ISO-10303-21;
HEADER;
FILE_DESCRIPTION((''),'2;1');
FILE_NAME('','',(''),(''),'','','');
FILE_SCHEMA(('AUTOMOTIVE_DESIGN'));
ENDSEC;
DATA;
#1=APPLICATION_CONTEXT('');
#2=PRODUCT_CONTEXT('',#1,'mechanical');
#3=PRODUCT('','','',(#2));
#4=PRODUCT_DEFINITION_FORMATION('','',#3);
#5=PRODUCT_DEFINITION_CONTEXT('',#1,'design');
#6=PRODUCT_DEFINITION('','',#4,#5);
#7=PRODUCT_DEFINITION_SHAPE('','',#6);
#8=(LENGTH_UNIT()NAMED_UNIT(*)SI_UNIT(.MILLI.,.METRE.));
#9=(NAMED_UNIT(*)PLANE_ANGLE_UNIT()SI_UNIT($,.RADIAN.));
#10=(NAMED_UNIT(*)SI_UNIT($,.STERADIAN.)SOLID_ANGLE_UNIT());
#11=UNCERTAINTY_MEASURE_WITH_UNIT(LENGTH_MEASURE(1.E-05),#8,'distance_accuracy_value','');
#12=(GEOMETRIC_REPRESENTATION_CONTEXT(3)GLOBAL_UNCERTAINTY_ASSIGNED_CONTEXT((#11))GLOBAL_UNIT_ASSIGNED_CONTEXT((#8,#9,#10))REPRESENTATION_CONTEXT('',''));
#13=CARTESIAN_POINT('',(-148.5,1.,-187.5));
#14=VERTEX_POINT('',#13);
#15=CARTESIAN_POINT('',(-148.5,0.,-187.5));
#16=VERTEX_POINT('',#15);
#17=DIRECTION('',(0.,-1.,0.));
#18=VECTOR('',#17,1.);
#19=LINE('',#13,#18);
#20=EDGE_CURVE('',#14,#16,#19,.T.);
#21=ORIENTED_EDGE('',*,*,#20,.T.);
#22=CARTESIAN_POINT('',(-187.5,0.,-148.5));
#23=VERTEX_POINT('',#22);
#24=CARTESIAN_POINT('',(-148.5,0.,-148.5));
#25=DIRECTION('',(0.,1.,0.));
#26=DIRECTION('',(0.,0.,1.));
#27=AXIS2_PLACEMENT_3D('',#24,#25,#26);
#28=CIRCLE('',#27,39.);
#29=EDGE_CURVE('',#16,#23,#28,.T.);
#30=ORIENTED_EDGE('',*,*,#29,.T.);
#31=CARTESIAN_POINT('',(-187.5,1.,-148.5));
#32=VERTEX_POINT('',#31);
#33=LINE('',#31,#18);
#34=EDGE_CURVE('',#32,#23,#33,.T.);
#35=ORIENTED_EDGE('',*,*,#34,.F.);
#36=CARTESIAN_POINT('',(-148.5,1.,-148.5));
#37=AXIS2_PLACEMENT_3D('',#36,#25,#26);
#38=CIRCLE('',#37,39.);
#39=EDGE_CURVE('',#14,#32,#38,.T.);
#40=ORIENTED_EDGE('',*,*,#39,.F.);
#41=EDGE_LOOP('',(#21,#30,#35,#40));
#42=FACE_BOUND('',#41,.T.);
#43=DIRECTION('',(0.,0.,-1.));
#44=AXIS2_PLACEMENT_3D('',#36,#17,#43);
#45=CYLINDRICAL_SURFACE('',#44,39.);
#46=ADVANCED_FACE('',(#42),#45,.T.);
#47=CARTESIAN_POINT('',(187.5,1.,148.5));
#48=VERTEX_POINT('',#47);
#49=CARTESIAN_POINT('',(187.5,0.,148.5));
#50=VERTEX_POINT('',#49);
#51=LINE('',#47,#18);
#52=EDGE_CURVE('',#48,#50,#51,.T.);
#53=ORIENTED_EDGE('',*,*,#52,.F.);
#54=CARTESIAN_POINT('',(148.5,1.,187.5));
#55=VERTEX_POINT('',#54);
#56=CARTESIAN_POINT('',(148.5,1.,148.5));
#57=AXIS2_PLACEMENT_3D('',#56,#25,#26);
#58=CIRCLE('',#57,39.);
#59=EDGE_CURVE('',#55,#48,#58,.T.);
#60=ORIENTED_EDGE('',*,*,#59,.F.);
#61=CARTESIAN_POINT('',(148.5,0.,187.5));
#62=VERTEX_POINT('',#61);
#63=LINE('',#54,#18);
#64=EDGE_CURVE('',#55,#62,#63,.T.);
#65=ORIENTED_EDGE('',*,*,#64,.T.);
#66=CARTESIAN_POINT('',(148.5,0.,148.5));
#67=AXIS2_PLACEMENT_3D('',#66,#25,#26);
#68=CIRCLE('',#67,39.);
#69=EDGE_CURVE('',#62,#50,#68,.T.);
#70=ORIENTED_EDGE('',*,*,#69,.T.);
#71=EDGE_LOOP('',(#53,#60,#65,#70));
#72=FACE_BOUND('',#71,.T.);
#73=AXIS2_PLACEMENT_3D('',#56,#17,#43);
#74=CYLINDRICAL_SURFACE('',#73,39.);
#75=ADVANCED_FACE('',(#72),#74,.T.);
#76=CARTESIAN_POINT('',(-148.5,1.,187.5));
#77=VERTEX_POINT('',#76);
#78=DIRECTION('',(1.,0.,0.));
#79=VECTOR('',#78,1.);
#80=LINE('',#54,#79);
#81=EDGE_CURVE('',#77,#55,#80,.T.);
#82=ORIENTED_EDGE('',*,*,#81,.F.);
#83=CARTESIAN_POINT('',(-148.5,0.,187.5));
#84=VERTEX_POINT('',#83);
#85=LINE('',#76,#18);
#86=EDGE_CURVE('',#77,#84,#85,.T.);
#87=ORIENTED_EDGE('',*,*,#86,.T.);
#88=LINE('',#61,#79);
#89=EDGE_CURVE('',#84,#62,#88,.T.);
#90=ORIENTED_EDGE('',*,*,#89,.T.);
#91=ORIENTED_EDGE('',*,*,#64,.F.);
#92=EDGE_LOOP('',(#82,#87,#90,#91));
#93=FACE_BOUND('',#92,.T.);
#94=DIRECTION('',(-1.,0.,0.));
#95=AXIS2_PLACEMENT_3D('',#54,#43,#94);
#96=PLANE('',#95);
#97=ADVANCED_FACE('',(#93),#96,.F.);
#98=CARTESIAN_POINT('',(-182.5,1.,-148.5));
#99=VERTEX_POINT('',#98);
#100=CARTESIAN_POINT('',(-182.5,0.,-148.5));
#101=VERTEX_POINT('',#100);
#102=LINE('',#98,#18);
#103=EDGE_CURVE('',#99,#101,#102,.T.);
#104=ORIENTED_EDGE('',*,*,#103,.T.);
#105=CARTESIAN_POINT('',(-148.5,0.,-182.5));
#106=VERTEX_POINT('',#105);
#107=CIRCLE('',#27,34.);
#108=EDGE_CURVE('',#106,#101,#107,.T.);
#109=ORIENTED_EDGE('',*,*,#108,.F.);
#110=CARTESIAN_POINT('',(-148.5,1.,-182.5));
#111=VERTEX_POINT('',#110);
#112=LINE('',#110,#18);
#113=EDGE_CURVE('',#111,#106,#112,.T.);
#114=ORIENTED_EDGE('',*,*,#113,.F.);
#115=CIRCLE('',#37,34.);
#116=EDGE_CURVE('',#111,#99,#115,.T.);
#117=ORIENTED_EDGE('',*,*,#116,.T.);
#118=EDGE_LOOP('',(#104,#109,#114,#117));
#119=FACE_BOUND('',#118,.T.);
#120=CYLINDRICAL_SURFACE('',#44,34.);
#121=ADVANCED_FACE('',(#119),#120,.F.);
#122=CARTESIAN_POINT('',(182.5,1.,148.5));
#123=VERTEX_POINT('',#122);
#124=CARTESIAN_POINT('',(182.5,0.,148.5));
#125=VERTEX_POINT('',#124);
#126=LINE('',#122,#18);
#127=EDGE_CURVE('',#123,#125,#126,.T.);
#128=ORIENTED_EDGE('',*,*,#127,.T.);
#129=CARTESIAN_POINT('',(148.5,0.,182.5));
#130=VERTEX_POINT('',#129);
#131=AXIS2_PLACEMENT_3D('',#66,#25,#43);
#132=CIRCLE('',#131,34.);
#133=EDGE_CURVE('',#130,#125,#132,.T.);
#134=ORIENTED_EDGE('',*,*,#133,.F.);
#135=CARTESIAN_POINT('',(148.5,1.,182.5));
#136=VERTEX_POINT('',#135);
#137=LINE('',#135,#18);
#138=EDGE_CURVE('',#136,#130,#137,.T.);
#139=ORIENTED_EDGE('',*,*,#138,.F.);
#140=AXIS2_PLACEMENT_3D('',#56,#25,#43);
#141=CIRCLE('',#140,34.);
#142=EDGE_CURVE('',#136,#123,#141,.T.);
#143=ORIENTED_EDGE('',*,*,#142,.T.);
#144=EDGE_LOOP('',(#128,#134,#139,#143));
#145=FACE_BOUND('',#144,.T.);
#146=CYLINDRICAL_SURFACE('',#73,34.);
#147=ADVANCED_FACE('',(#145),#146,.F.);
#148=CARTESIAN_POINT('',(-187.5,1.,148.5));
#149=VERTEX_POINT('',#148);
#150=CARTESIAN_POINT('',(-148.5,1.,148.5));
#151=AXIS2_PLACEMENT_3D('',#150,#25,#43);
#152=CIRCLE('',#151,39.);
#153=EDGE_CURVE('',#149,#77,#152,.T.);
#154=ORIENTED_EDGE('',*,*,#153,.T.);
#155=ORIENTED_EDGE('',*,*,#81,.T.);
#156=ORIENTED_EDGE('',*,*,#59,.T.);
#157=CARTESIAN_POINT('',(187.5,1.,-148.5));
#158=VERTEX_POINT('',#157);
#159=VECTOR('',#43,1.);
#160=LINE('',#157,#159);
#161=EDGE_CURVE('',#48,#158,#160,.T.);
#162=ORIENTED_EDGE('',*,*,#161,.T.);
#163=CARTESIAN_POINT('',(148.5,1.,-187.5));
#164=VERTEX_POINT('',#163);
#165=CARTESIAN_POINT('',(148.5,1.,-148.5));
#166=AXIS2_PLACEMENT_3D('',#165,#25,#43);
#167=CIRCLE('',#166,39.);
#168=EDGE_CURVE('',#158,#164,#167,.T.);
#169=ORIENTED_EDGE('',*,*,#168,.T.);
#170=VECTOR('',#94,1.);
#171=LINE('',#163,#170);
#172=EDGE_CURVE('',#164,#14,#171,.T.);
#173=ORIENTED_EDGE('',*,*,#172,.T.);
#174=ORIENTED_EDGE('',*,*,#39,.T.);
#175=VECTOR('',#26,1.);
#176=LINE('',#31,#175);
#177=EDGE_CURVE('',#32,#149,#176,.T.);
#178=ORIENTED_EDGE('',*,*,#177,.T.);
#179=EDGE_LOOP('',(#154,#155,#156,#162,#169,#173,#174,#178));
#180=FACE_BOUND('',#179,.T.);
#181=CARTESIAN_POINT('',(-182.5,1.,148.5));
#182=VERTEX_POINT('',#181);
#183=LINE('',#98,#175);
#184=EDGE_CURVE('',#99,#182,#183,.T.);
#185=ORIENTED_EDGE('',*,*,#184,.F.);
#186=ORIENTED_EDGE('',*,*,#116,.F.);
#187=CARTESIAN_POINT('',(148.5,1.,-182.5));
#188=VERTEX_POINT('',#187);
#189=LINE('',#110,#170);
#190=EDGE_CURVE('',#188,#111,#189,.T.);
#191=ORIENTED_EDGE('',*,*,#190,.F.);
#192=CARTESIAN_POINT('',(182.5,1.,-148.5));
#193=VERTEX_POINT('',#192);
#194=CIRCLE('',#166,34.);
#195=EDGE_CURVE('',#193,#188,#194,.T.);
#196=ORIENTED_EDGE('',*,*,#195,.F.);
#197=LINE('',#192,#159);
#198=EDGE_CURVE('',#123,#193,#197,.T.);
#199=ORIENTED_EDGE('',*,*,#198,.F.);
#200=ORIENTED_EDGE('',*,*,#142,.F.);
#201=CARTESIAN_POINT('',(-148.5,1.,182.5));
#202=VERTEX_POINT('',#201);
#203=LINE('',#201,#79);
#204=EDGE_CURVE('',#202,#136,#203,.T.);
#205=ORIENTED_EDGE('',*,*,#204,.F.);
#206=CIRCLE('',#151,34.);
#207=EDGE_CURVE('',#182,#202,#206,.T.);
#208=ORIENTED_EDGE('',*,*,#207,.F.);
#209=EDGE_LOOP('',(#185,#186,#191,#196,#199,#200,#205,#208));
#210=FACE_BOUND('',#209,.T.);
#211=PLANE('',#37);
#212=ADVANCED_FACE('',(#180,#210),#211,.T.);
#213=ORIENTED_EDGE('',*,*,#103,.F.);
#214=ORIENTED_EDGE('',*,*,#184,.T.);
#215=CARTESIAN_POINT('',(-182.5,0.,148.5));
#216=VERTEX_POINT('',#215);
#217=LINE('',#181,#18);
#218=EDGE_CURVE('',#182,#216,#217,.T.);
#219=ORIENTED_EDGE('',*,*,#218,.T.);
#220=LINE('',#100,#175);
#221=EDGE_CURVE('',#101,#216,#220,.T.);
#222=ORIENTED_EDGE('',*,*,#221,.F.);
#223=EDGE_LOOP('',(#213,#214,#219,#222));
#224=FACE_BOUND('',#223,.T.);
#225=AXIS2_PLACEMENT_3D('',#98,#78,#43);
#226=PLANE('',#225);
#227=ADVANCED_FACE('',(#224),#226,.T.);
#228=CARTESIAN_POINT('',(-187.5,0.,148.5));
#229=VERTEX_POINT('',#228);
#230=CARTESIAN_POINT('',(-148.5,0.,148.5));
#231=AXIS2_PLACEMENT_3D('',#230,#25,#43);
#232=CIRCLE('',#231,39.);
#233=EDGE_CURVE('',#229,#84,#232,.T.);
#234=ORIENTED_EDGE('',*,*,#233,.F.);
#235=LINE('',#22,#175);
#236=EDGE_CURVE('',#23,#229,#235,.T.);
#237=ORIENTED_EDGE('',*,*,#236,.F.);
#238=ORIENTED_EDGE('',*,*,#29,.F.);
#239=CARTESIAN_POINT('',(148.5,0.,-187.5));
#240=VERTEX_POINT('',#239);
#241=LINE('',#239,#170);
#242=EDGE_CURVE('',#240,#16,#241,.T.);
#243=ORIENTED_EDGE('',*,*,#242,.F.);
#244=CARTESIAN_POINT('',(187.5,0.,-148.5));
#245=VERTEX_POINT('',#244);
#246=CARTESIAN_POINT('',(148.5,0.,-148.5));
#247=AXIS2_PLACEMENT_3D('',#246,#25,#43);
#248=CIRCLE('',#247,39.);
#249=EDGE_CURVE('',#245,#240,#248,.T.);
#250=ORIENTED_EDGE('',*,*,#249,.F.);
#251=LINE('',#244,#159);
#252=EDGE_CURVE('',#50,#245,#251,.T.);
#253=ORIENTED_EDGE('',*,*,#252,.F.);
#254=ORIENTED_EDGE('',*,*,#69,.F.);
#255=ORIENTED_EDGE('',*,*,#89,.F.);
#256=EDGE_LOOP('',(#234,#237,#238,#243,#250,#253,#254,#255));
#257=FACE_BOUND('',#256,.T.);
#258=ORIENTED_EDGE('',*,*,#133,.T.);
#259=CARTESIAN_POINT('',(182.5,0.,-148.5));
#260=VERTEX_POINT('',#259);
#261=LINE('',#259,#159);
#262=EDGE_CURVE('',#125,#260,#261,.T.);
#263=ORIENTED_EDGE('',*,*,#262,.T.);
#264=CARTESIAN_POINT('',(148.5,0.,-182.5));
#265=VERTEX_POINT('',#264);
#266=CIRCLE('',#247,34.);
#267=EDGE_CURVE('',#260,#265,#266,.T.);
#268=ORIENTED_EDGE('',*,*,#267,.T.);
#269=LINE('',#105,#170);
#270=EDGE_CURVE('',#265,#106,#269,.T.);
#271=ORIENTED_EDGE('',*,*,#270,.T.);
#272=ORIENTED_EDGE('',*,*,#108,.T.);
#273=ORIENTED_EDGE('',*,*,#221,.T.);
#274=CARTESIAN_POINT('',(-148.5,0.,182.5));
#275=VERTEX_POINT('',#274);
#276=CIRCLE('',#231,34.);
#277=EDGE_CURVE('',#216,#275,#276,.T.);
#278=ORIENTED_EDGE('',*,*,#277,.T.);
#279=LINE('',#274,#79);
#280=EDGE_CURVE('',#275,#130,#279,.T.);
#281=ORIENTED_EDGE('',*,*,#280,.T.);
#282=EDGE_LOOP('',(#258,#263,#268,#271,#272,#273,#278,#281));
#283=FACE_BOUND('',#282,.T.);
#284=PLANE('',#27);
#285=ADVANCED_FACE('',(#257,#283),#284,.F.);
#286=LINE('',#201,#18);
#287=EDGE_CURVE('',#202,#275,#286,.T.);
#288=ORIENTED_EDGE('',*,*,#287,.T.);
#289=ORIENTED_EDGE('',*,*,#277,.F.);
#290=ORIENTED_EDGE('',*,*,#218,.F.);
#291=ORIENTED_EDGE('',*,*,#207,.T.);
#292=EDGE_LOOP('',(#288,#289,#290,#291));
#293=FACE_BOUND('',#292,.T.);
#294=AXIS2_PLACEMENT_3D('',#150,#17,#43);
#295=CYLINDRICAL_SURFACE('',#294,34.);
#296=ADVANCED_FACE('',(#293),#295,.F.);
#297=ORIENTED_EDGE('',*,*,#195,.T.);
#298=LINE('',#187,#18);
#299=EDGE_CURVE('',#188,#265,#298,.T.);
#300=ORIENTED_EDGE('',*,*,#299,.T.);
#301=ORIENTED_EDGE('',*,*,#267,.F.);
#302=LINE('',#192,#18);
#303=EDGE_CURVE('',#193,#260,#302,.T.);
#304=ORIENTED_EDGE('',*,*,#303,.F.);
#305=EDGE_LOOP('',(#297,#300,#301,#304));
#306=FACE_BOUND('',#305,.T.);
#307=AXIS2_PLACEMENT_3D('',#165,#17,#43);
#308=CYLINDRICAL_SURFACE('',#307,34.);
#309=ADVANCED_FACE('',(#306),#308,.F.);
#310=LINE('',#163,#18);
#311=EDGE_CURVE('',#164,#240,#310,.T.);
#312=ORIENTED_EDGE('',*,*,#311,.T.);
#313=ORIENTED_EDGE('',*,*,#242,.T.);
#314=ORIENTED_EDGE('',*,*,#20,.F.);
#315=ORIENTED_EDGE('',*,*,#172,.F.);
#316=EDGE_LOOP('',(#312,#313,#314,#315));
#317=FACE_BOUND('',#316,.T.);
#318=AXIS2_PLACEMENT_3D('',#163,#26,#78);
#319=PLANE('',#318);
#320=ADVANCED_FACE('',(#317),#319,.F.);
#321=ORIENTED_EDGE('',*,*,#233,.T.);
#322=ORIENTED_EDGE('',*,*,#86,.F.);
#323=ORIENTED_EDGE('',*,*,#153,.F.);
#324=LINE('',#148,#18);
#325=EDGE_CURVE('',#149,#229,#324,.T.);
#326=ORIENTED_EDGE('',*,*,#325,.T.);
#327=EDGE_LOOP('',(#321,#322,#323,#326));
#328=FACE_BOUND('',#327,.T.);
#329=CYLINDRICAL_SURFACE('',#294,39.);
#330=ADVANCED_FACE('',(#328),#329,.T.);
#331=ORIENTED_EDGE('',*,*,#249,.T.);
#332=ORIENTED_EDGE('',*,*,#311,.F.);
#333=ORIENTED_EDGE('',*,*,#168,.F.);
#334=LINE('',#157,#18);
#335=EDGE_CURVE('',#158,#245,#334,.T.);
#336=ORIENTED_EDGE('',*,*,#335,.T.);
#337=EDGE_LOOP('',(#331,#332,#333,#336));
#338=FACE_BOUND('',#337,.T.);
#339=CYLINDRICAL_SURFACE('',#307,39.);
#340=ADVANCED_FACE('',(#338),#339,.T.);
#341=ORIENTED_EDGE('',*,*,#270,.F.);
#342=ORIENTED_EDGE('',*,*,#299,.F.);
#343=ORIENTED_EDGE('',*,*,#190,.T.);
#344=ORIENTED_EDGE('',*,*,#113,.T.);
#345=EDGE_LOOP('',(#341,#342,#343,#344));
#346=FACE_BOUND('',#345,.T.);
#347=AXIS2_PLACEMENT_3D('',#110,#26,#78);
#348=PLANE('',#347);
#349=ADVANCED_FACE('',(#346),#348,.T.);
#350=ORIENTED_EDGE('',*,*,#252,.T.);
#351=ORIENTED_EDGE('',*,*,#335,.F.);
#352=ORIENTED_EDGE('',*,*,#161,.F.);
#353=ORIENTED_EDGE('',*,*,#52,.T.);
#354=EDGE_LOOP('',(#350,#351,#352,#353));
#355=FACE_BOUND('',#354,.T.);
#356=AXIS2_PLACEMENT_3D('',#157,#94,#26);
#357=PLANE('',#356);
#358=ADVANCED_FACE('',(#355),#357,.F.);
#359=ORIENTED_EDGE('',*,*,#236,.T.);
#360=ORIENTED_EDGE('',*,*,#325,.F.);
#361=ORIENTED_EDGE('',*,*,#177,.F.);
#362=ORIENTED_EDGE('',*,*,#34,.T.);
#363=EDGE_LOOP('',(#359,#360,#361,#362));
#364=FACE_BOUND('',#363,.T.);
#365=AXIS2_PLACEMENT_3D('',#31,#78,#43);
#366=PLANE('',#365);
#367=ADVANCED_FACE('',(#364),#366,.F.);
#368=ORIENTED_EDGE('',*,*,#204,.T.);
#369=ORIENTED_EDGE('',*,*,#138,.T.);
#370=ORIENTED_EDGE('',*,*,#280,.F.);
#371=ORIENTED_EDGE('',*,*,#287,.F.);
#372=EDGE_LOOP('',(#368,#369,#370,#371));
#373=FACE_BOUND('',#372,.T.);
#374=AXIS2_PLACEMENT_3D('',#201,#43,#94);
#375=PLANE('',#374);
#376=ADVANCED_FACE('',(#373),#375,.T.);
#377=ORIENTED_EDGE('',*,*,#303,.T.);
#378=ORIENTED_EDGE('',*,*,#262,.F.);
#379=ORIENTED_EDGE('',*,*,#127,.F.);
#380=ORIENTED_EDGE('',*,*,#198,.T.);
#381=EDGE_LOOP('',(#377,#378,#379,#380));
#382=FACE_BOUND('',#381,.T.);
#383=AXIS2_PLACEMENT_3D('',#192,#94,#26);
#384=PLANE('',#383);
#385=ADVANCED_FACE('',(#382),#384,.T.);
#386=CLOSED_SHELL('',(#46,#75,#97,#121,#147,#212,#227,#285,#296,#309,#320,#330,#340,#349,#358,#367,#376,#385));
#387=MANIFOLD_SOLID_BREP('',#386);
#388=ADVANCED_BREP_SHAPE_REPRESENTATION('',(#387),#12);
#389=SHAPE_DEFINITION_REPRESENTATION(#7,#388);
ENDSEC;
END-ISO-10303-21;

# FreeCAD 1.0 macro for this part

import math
import FreeCAD as App
import Part
import Sketcher

V = App.Vector
Q = App.Units.Quantity

doc = App.newDocument("Part")
params = doc.addObject("Spreadsheet::Sheet", "Params")
for row, (alias, value) in enumerate([
    ("sketch1_radius", "39 mm"),
    ("sketch1_radius2", "34 mm"),
    ("sketch1_width", "297 mm"),
    ("pad1_length", "1 mm"),
], start=1):
    params.set(f"A{row}", alias)
    params.set(f"B{row}", "=" + value)
    params.setAlias(f"B{row}", alias)

body = doc.addObject("PartDesign::Body", "Body")

# Sketch on XZ plane
sketch1 = body.newObject("Sketcher::SketchObject", "Sketch")
sketch1.AttachmentSupport = (doc.getObject("XZ_Plane"), [""])
sketch1.MapMode = "FlatFace"
sketch1.addGeometry(Part.LineSegment(V(188, 148, 0), V(188, -148, 0)), False)
sketch1.addGeometry(Part.ArcOfCircle(Part.Circle(V(148, -148, 0), V(0, 0, 1), 39), math.radians(-90), math.radians(0)), False)
sketch1.addGeometry(Part.LineSegment(V(148, -188, 0), V(-148, -188, 0)), False)
sketch1.addGeometry(Part.ArcOfCircle(Part.Circle(V(-148, -148, 0), V(0, 0, 1), 39), math.radians(-180), math.radians(-90)), False)
sketch1.addGeometry(Part.LineSegment(V(-188, -148, 0), V(-188, 148, 0)), False)
sketch1.addGeometry(Part.ArcOfCircle(Part.Circle(V(-148, 148, 0), V(0, 0, 1), 39), math.radians(90), math.radians(180)), False)
sketch1.addGeometry(Part.LineSegment(V(-148, 188, 0), V(148, 188, 0)), False)
sketch1.addGeometry(Part.ArcOfCircle(Part.Circle(V(148, 148, 0), V(0, 0, 1), 39), math.radians(0), math.radians(90)), False)
sketch1.addGeometry(Part.LineSegment(V(-148, -182, 0), V(148, -182, 0)), False)
sketch1.addGeometry(Part.ArcOfCircle(Part.Circle(V(148, -148, 0), V(0, 0, 1), 34), math.radians(-90), math.radians(0)), False)
sketch1.addGeometry(Part.LineSegment(V(182, -148, 0), V(182, 148, 0)), False)
sketch1.addGeometry(Part.ArcOfCircle(Part.Circle(V(148, 148, 0), V(0, 0, 1), 34), math.radians(0), math.radians(90)), False)
sketch1.addGeometry(Part.LineSegment(V(148, 182, 0), V(-148, 182, 0)), False)
sketch1.addGeometry(Part.ArcOfCircle(Part.Circle(V(-148, 148, 0), V(0, 0, 1), 34), math.radians(90), math.radians(180)), False)
sketch1.addGeometry(Part.LineSegment(V(-182, 148, 0), V(-182, -148, 0)), False)
sketch1.addGeometry(Part.ArcOfCircle(Part.Circle(V(-148, -148, 0), V(0, 0, 1), 34), math.radians(-180), math.radians(-90)), False)
sketch1.addConstraint(Sketcher.Constraint("Tangent", 0, 2, 1, 2))
sketch1.addConstraint(Sketcher.Constraint("Tangent", 1, 1, 2, 1))
sketch1.addConstraint(Sketcher.Constraint("Tangent", 2, 2, 3, 2))
sketch1.addConstraint(Sketcher.Constraint("Tangent", 3, 1, 4, 1))
sketch1.addConstraint(Sketcher.Constraint("Tangent", 4, 2, 5, 2))
sketch1.addConstraint(Sketcher.Constraint("Tangent", 5, 1, 6, 1))
sketch1.addConstraint(Sketcher.Constraint("Tangent", 6, 2, 7, 2))
sketch1.addConstraint(Sketcher.Constraint("Tangent", 7, 1, 0, 1))
sketch1.addConstraint(Sketcher.Constraint("Tangent", 8, 2, 9, 1))
sketch1.addConstraint(Sketcher.Constraint("Tangent", 9, 2, 10, 1))
sketch1.addConstraint(Sketcher.Constraint("Tangent", 10, 2, 11, 1))
sketch1.addConstraint(Sketcher.Constraint("Tangent", 11, 2, 12, 1))
sketch1.addConstraint(Sketcher.Constraint("Tangent", 12, 2, 13, 1))
sketch1.addConstraint(Sketcher.Constraint("Tangent", 13, 2, 14, 1))
sketch1.addConstraint(Sketcher.Constraint("Tangent", 14, 2, 15, 1))
sketch1.addConstraint(Sketcher.Constraint("Tangent", 15, 2, 8, 1))
sketch1.addConstraint(Sketcher.Constraint("Vertical", 0))
sketch1.addConstraint(Sketcher.Constraint("Horizontal", 2))
sketch1.addConstraint(Sketcher.Constraint("Vertical", 4))
sketch1.addConstraint(Sketcher.Constraint("Horizontal", 6))
sketch1.addConstraint(Sketcher.Constraint("Horizontal", 8))
sketch1.addConstraint(Sketcher.Constraint("Vertical", 10))
sketch1.addConstraint(Sketcher.Constraint("Horizontal", 12))
sketch1.addConstraint(Sketcher.Constraint("Vertical", 14))
sketch1.addConstraint(Sketcher.Constraint("Coincident", 9, 3, 1, 3))
sketch1.addConstraint(Sketcher.Constraint("Coincident", 11, 3, 7, 3))
sketch1.addConstraint(Sketcher.Constraint("Coincident", 13, 3, 5, 3))
sketch1.addConstraint(Sketcher.Constraint("Equal", 1, 3))
sketch1.addConstraint(Sketcher.Constraint("Equal", 3, 5))
sketch1.addConstraint(Sketcher.Constraint("Equal", 5, 7))
sketch1.addConstraint(Sketcher.Constraint("Equal", 13, 15))
sketch1.addConstraint(Sketcher.Constraint("Symmetric", 1, 3, 5, 3, -1, 1))
sketch1.addConstraint(Sketcher.Constraint("Equal", 12, 0))
sketch1.addConstraint(Sketcher.Constraint("Radius", 1, Q("39 mm")))
sketch1.addConstraint(Sketcher.Constraint("Radius", 9, Q("34 mm")))
sketch1.addConstraint(Sketcher.Constraint("DistanceX", 2, 2, 2, 1, Q("297 mm")))
sketch1.setExpression("Constraints[33]", "Params.sketch1_radius")
sketch1.setExpression("Constraints[34]", "Params.sketch1_radius2")
sketch1.setExpression("Constraints[35]", "Params.sketch1_width")
pad1 = body.newObject("PartDesign::Pad", "Pad")
pad1.Profile = sketch1
pad1.setExpression("Length", "Params.pad1_length")
pad1.Reversed = True

doc.recompute()
